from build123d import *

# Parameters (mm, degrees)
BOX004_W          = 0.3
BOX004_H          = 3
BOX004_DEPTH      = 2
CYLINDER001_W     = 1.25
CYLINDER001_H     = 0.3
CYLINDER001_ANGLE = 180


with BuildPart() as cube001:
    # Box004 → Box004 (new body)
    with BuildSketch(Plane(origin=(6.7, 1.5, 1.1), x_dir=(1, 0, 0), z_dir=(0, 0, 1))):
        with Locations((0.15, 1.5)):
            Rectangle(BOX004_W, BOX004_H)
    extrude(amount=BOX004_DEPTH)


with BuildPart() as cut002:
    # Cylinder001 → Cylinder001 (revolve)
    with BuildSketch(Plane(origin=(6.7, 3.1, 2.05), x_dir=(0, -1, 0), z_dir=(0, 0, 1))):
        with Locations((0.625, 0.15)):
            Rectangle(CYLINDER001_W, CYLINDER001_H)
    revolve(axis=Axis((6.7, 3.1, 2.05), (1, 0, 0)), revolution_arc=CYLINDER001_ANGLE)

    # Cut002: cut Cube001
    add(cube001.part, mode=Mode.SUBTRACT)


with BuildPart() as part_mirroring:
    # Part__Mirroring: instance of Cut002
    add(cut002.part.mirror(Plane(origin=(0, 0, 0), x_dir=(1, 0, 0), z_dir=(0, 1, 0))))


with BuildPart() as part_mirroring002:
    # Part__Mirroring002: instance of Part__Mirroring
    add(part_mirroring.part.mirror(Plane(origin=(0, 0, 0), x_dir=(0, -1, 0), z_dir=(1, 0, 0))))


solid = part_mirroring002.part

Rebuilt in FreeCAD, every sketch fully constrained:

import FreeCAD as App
import Part
import Sketcher

V = App.Vector


def add_polygon(sketch, points):
    """Adds a closed chain of lines whose ends are joined by coincident constraints."""
    first, n = sketch.GeometryCount, len(points)
    for a, b in zip(points, points[1:] + points[:1]):
        sketch.addGeometry(Part.LineSegment(App.Vector(*a, 0), App.Vector(*b, 0)), False)
    for i in range(n):
        sketch.addConstraint(Sketcher.Constraint("Coincident", first + i, 2, first + (i + 1) % n, 1))

doc = App.newDocument("Part")
params = doc.addObject("Spreadsheet::Sheet", "Params")
for row, (alias, value) in enumerate([
    ("sketch1_height", "3 mm"),
    ("sketch1_width", "0.3 mm"),
    ("pad1_length", "2 mm"),
    ("sketch2_width", "0.3 mm"),
    ("sketch2_height", "1.25 mm"),
    ("revolution_angle", "180 deg"),
], start=1):
    params.set(f"A{row}", alias)
    params.set(f"B{row}", "=" + value)
    params.setAlias(f"B{row}", alias)

body = doc.addObject("PartDesign::Body", "Body")

sketch1 = body.newObject("Sketcher::SketchObject", "Sketch")
sketch1.AttachmentSupport = (doc.getObject("XY_Plane"), [""])
sketch1.MapMode = "FlatFace"
sketch1.AttachmentOffset = App.Placement(V(0, 0, 1.1), App.Rotation())
add_polygon(sketch1, [(6.7, 4.5), (6.7, 1.5), (7, 1.5), (7, 4.5)])
sketch1.addConstraint(Sketcher.Constraint("Vertical", 0))
sketch1.addConstraint(Sketcher.Constraint("Horizontal", 1))
sketch1.addConstraint(Sketcher.Constraint("Vertical", 2))
sketch1.addConstraint(Sketcher.Constraint("Horizontal", 3))
sketch1.addConstraint(Sketcher.Constraint("DistanceY", 0, 2, 0, 1, 3.0))
sketch1.addConstraint(Sketcher.Constraint("DistanceX", 1, 1, 1, 2, 0.3))
sketch1.addConstraint(Sketcher.Constraint("DistanceX", -1, 1, 1, 2, 7.0))
sketch1.addConstraint(Sketcher.Constraint("DistanceY", -1, 1, 0, 2, 1.5))
sketch1.setExpression("Constraints[8]", "Params.sketch1_height")
sketch1.setExpression("Constraints[9]", "Params.sketch1_width")
pad1 = body.newObject("PartDesign::Pad", "Pad")
pad1.Profile = sketch1
pad1.setExpression("Length", "Params.pad1_length")
body2 = doc.addObject("PartDesign::Body", "Body001")

sketch2 = body2.newObject("Sketcher::SketchObject", "Sketch001")
sketch2.AttachmentSupport = (doc.getObject("XY_Plane001"), [""])
sketch2.MapMode = "FlatFace"
sketch2.AttachmentOffset = App.Placement(V(0, 0, 2.05), App.Rotation())
add_polygon(sketch2, [(7, 3.1), (6.7, 3.1), (6.7, 1.85), (7, 1.85)])
sketch2.addGeometry(Part.LineSegment(V(6.7, 3.1, 0), V(7, 3.1, 0)), True)
sketch2.addConstraint(Sketcher.Constraint("Horizontal", 0))
sketch2.addConstraint(Sketcher.Constraint("Vertical", 1))
sketch2.addConstraint(Sketcher.Constraint("Horizontal", 2))
sketch2.addConstraint(Sketcher.Constraint("Vertical", 3))
sketch2.addConstraint(Sketcher.Constraint("Horizontal", 4))
sketch2.addConstraint(Sketcher.Constraint("Coincident", 4, 1, 0, 2))
sketch2.addConstraint(Sketcher.Constraint("Vertical", 2, 2, 4, 2))
sketch2.addConstraint(Sketcher.Constraint("DistanceX", 0, 2, 0, 1, 0.3))
sketch2.addConstraint(Sketcher.Constraint("DistanceX", -1, 1, 2, 2, 7.0))
sketch2.addConstraint(Sketcher.Constraint("DistanceY", 1, 2, 1, 1, 1.25))
sketch2.addConstraint(Sketcher.Constraint("DistanceY", -1, 1, 0, 2, 3.1))
sketch2.setExpression("Constraints[11]", "Params.sketch2_width")
sketch2.setExpression("Constraints[13]", "Params.sketch2_height")
revolution = body2.newObject("PartDesign::Revolution", "Revolution")
revolution.Profile = sketch2
revolution.ReferenceAxis = (sketch2, ["Axis0"])
revolution.setExpression("Angle", "Params.revolution_angle")
doc.recompute()

boolean = body2.newObject("PartDesign::Boolean", "Boolean")
boolean.Type = "Cut"
boolean.addObjects([body])
body3 = doc.addObject("PartDesign::Body", "Body002")
doc.recompute()

mirroring = doc.addObject("Part::Mirroring", "Mirroring")
mirroring.Source = body2
mirroring.Base = V(0, 0, 0)
mirroring.Normal = V(0, 1, 0)
body3.BaseFeature = mirroring
doc.recompute()
body4 = doc.addObject("PartDesign::Body", "Body003")
doc.recompute()

mirroring2 = doc.addObject("Part::Mirroring", "Mirroring001")
mirroring2.Source = body3
mirroring2.Base = V(0, 0, 0)
mirroring2.Normal = V(1, 0, 0)
body4.BaseFeature = mirroring2
doc.recompute()
body2.Visibility = False
body3.Visibility = False
mirroring.Visibility = False
mirroring2.Visibility = False

doc.recompute()
